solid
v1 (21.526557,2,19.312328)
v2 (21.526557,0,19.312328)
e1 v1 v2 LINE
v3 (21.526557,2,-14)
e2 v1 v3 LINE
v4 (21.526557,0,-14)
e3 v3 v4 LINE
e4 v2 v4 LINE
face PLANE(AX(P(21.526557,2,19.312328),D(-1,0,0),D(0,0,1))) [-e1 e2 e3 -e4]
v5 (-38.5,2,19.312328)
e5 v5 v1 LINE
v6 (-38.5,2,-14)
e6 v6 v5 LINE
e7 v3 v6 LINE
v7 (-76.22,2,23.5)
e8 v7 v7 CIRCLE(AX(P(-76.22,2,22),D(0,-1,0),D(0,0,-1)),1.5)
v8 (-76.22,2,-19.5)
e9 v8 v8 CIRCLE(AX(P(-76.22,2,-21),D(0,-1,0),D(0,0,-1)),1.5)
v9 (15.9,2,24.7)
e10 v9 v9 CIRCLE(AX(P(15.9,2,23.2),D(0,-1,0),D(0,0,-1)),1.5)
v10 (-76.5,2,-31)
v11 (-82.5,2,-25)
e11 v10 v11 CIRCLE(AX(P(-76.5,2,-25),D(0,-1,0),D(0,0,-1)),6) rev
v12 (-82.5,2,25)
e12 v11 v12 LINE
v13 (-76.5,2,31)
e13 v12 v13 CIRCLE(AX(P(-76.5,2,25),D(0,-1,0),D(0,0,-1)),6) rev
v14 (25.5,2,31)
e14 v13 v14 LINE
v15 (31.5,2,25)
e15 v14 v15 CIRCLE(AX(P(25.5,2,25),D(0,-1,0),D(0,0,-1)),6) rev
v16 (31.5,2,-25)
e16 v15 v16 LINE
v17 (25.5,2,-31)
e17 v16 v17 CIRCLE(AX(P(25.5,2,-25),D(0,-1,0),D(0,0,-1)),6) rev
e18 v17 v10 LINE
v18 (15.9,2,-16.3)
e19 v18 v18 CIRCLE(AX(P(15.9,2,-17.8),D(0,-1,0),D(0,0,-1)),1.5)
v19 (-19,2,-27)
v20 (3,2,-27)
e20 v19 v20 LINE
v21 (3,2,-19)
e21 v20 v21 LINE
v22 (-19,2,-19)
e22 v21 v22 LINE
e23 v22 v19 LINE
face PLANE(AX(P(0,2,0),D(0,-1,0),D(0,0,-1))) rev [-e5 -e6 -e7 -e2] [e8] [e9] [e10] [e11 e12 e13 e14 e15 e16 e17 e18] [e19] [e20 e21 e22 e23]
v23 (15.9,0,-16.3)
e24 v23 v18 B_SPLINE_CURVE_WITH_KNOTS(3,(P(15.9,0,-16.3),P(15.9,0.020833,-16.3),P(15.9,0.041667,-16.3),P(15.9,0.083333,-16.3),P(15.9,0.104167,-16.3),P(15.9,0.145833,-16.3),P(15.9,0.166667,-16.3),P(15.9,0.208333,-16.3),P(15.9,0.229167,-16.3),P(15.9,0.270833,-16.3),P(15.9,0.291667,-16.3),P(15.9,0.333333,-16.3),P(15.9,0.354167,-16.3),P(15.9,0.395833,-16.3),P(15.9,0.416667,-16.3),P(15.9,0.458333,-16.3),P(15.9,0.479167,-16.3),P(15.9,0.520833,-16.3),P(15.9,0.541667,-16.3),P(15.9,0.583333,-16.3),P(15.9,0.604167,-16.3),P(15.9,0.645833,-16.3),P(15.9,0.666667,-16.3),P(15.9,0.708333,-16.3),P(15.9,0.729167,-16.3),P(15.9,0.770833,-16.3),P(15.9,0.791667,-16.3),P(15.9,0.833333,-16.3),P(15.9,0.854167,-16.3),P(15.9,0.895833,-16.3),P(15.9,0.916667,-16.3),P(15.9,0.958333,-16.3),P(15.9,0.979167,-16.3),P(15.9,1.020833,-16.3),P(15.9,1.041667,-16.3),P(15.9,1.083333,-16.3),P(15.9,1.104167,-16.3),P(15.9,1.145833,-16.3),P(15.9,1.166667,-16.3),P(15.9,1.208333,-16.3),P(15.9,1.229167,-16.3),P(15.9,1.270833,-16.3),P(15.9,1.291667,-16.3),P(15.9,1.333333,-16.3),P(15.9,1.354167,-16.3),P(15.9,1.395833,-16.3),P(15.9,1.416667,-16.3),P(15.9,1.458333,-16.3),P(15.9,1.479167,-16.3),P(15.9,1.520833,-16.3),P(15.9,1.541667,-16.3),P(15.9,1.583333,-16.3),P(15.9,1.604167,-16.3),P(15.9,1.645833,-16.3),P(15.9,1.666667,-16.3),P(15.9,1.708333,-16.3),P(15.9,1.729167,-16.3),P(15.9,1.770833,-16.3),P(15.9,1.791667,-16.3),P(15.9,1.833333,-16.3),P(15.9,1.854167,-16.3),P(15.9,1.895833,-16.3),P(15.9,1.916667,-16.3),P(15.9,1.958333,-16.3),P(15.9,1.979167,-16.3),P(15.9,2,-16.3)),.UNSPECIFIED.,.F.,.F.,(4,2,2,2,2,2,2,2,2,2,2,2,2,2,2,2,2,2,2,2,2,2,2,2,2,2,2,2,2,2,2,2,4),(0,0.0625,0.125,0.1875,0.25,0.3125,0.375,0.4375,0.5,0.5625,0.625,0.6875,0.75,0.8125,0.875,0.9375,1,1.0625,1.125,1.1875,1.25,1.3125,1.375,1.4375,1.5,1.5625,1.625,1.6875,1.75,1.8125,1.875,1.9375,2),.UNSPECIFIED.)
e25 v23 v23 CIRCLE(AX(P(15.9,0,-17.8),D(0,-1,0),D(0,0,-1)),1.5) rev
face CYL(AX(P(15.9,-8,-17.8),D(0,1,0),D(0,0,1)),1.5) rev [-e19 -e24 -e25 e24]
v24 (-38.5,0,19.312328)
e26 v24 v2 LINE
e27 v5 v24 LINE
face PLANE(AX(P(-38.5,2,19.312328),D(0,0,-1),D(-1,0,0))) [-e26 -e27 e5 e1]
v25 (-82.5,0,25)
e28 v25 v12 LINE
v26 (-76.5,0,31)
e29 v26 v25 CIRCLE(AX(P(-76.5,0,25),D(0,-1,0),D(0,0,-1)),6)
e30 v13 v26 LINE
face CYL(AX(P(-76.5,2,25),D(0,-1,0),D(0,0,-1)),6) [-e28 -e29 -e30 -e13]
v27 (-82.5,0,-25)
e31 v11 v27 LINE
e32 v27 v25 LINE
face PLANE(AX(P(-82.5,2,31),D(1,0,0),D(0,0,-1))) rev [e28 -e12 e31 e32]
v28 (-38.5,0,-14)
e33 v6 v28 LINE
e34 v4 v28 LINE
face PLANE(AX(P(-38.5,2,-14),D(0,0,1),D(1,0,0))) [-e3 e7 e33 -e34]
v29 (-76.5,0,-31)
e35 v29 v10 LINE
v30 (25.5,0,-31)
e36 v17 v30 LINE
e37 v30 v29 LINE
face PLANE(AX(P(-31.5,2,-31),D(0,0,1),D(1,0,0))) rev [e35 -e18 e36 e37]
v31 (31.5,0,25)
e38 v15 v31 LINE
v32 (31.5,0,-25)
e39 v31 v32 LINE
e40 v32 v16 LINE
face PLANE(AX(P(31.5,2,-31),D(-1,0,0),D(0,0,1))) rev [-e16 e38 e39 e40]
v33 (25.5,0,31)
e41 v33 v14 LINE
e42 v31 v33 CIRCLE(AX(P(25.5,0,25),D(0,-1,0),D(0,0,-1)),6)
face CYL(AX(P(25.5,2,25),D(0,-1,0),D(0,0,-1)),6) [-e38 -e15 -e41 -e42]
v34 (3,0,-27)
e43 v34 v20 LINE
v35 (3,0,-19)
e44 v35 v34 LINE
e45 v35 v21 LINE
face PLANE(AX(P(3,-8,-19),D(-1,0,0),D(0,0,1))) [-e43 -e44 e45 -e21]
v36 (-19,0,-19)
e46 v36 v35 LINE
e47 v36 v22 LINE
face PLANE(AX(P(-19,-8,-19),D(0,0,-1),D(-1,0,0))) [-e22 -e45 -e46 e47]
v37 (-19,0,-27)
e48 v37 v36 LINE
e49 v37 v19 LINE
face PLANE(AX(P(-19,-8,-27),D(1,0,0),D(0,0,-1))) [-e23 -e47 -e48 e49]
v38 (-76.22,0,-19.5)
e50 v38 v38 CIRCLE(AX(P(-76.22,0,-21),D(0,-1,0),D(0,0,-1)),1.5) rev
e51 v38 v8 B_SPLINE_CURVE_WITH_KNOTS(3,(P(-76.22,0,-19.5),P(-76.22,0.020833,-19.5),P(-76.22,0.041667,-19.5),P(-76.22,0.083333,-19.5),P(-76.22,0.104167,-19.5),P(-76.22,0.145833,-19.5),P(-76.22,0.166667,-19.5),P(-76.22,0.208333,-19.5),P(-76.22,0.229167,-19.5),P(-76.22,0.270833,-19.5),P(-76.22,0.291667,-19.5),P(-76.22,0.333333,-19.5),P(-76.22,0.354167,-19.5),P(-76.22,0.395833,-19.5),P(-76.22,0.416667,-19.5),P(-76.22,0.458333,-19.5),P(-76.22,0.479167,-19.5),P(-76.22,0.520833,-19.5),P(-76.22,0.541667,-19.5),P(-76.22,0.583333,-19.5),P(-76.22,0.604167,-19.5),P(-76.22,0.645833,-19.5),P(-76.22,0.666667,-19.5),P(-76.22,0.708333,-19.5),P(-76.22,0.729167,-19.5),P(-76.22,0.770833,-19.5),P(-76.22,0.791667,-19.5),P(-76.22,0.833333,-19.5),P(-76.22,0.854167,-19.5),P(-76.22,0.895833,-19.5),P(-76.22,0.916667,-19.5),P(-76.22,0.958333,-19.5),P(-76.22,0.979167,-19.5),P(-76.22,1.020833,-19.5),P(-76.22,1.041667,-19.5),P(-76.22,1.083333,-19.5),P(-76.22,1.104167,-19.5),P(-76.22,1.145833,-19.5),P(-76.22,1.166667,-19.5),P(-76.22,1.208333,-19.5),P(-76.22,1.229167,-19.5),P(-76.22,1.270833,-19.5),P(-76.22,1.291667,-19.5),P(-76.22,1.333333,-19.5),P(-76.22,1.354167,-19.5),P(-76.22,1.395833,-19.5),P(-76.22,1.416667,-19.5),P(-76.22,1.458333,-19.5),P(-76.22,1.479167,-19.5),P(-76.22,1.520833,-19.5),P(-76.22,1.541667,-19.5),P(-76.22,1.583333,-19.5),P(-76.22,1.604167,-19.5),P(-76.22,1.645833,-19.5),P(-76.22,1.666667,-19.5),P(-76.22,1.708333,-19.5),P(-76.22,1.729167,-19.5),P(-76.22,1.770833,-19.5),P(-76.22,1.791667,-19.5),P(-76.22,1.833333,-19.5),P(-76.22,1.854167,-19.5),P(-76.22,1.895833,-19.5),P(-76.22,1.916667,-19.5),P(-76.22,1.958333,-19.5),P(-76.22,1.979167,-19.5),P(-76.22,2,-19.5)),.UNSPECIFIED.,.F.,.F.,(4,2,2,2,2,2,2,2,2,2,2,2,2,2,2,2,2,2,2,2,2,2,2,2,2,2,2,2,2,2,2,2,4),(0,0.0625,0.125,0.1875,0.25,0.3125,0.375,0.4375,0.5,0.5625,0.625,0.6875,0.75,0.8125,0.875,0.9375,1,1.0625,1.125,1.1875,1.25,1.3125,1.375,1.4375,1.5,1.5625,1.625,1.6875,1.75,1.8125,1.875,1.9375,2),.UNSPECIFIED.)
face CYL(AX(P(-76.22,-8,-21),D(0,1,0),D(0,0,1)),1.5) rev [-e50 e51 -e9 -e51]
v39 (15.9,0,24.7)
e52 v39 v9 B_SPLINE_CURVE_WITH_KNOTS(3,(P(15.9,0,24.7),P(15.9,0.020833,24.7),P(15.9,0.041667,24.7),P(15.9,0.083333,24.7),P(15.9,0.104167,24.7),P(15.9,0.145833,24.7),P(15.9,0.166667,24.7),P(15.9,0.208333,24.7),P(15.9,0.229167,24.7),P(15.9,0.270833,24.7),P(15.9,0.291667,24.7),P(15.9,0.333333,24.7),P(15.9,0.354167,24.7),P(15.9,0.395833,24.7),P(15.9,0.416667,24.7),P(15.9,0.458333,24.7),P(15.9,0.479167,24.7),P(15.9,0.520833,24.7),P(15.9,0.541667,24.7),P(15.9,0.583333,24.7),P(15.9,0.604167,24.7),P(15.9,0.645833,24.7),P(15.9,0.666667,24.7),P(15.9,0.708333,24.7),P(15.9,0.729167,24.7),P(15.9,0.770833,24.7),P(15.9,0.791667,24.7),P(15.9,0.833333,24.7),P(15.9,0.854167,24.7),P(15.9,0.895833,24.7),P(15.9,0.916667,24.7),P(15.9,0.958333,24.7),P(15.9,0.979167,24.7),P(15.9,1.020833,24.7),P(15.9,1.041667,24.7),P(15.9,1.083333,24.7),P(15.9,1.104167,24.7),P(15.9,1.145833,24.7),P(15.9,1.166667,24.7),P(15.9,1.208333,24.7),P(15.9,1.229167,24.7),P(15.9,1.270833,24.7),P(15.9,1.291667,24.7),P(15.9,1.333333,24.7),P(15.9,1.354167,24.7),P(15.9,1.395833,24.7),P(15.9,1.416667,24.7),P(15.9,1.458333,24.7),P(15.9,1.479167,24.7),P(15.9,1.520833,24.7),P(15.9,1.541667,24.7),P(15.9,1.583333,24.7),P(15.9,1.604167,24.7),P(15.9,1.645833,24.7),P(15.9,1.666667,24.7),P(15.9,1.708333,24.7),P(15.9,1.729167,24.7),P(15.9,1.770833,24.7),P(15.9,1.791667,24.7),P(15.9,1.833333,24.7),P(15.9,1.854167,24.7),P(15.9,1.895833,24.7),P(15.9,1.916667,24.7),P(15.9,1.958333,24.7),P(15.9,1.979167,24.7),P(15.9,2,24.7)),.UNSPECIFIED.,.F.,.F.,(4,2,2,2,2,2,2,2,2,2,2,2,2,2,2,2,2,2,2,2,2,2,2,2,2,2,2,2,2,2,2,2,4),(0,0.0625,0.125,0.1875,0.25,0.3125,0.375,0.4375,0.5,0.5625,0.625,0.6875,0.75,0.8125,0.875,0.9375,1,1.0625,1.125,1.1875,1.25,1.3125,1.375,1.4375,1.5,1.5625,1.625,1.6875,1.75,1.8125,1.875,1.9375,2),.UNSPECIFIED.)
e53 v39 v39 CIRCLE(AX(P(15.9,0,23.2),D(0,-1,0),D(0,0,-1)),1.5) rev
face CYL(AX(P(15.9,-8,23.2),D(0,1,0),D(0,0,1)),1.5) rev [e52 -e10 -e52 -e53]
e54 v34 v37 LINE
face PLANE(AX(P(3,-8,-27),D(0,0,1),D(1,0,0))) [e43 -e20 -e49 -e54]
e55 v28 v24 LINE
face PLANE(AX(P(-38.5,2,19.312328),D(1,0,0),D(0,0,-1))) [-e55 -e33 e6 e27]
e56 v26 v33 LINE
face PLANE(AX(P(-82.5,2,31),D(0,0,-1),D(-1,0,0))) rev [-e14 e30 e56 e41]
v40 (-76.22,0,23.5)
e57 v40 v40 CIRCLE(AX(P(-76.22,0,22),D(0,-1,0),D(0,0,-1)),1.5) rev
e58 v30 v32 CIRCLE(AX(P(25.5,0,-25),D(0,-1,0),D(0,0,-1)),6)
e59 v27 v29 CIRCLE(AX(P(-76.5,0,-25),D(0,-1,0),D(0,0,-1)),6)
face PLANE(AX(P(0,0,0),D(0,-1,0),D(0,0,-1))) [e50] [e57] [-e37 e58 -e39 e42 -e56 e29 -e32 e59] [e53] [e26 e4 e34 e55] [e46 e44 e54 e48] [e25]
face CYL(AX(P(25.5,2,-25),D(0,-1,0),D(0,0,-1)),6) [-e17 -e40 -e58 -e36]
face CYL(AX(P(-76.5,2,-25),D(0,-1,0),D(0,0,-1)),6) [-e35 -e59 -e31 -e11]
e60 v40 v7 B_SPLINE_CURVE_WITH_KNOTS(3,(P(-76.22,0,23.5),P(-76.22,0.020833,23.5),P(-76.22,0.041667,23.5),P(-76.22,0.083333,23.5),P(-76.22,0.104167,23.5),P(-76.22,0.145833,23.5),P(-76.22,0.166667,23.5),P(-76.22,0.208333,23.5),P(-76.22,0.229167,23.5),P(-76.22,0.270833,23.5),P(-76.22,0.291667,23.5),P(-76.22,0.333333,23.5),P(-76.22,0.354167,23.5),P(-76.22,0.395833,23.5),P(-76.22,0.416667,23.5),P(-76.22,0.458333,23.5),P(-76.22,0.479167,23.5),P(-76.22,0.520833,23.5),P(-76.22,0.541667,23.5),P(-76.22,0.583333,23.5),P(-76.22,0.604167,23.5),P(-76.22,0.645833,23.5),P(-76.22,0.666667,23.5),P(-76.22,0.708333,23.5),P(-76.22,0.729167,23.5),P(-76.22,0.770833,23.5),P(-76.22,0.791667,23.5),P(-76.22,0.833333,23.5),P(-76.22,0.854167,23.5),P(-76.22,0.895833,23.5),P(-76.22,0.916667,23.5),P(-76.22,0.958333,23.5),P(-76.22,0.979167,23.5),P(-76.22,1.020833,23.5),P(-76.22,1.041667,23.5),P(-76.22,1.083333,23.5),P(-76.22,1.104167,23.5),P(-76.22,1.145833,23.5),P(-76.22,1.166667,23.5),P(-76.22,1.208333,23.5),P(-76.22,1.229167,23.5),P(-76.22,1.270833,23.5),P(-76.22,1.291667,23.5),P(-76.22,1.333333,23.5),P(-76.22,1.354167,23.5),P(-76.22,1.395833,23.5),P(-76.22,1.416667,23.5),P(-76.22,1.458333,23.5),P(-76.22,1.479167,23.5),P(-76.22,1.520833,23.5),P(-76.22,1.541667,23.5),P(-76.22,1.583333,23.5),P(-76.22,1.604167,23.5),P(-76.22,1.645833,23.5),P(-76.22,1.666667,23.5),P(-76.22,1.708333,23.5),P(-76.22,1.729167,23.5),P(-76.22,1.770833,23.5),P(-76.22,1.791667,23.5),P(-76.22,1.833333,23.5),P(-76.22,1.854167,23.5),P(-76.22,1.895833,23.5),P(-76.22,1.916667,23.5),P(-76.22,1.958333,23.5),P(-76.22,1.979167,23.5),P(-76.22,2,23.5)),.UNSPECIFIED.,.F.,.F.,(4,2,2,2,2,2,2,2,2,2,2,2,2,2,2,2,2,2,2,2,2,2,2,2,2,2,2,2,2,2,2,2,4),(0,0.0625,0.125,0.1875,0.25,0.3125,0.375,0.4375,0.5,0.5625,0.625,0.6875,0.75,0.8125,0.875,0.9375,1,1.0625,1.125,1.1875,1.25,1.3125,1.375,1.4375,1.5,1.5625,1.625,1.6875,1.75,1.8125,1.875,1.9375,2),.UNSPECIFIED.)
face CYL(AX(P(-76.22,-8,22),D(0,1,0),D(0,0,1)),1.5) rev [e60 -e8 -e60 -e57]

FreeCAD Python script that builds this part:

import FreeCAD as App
import Part
import Sketcher

V = App.Vector
Q = App.Units.Quantity


def edges_at(feature, points):
    """Names of the edges that pass closest to the given points."""
    edges = feature.Shape.Edges
    near = lambda p: min(range(len(edges)), key=lambda i: edges[i].distToShape(Part.Vertex(*p))[0])
    return sorted({f"Edge{near(p) + 1}" for p in points})

doc = App.newDocument("Part")
body = doc.addObject("PartDesign::Body", "Body")

# Sketch on XZ plane
sketch1 = body.newObject("Sketcher::SketchObject", "Sketch")
sketch1.AttachmentSupport = (doc.getObject("XZ_Plane"), [""])
sketch1.MapMode = "FlatFace"
sketch1.addGeometry([
    Part.LineSegment(V(-82.5, -31, 0), V(-82.5, 31, 0)),  # 0
    Part.LineSegment(V(-82.5, 31, 0), V(31.5, 31, 0)),  # 1
    Part.LineSegment(V(31.5, 31, 0), V(31.5, -31, 0)),  # 2
    Part.LineSegment(V(31.5, -31, 0), V(-82.5, -31, 0)),  # 3
    Part.LineSegment(V(-38.5, 19.312328, 0), V(-38.5, -14, 0)),  # 4
    Part.LineSegment(V(-38.5, -14, 0), V(21.526557, -14, 0)),  # 5
    Part.LineSegment(V(21.526557, -14, 0), V(21.526557, 19.312328, 0)),  # 6
    Part.LineSegment(V(21.526557, 19.312328, 0), V(-38.5, 19.312328, 0)),  # 7
], False)
sketch1.addConstraint([
    Sketcher.Constraint("Coincident", 0, 2, 1, 1),
    Sketcher.Constraint("Coincident", 1, 2, 2, 1),
    Sketcher.Constraint("Coincident", 2, 2, 3, 1),
    Sketcher.Constraint("Coincident", 3, 2, 0, 1),
    Sketcher.Constraint("Coincident", 4, 2, 5, 1),
    Sketcher.Constraint("Coincident", 5, 2, 6, 1),
    Sketcher.Constraint("Coincident", 6, 2, 7, 1),
    Sketcher.Constraint("Coincident", 7, 2, 4, 1),
    Sketcher.Constraint("Vertical", 0),
    Sketcher.Constraint("Horizontal", 1),
    Sketcher.Constraint("Vertical", 2),
    Sketcher.Constraint("Horizontal", 3),
    Sketcher.Constraint("Vertical", 4),
    Sketcher.Constraint("Horizontal", 5),
    Sketcher.Constraint("Vertical", 6),
    Sketcher.Constraint("Horizontal", 7),
    Sketcher.Constraint("DistanceX", 1, 1, 1, 2, Q("114 mm")),
    Sketcher.Constraint("DistanceY", 0, 1, 0, 2, Q("62 mm")),
    Sketcher.Constraint("DistanceY", -1, 1, 0, 2, Q("31 mm")),
    Sketcher.Constraint("DistanceY", 4, 2, -1, 1, Q("14 mm")),
    Sketcher.Constraint("DistanceX", 3, 2, 4, 2, Q("44 mm")),
    Sketcher.Constraint("DistanceX", 0, 2, -1, 1, Q("82.5 mm")),
    Sketcher.Constraint("DistanceX", 5, 1, 5, 2, Q("60.026557 mm")),
    Sketcher.Constraint("DistanceY", 4, 2, 4, 1, Q("33.312328 mm")),
])
pad1 = body.newObject("PartDesign::Pad", "Pad")
pad1.Profile = sketch1
pad1.Length = 2
pad1.Reversed = True

# Sketch on XZ plane
sketch2 = body.newObject("Sketcher::SketchObject", "Sketch001")
sketch2.AttachmentSupport = (doc.getObject("XZ_Plane"), [""])
sketch2.MapMode = "FlatFace"
sketch2.AttachmentOffset = App.Placement(V(0, 0, -2), App.Rotation())
sketch2.addGeometry([
    Part.Circle(V(15.9, 23.2, 0), V(0, 0, 1), 1.5),  # 0
    Part.Circle(V(15.9, -17.8, 0), V(0, 0, 1), 1.5),  # 1
    Part.Circle(V(-76.22, 22, 0), V(0, 0, 1), 1.5),  # 2
    Part.Circle(V(-76.22, -21, 0), V(0, 0, 1), 1.5),  # 3
    Part.LineSegment(V(-19, -19, 0), V(-19, -27, 0)),  # 4
    Part.LineSegment(V(-19, -27, 0), V(3, -27, 0)),  # 5
    Part.LineSegment(V(3, -27, 0), V(3, -19, 0)),  # 6
    Part.LineSegment(V(3, -19, 0), V(-19, -19, 0)),  # 7
], False)
sketch2.addConstraint([
    Sketcher.Constraint("Coincident", 4, 2, 5, 1),
    Sketcher.Constraint("Coincident", 5, 2, 6, 1),
    Sketcher.Constraint("Coincident", 6, 2, 7, 1),
    Sketcher.Constraint("Coincident", 7, 2, 4, 1),
    Sketcher.Constraint("Vertical", 4),
    Sketcher.Constraint("Horizontal", 5),
    Sketcher.Constraint("Vertical", 6),
    Sketcher.Constraint("Horizontal", 7),
    Sketcher.Constraint("Equal", 0, 1),
    Sketcher.Constraint("Equal", 1, 2),
    Sketcher.Constraint("Equal", 2, 3),
    Sketcher.Constraint("Vertical", 0, 3, 1, 3),
    Sketcher.Constraint("Vertical", 2, 3, 3, 3),
    Sketcher.Constraint("Diameter", 0, Q("3 mm")),
    Sketcher.Constraint("DistanceX", 5, 1, 5, 2, Q("22 mm")),
    Sketcher.Constraint("DistanceY", 4, 2, 4, 1, Q("8 mm")),
    Sketcher.Constraint("DistanceY", -1, 1, 2, 3, Q("22 mm")),
    Sketcher.Constraint("DistanceY", 3, 3, -1, 1, Q("21 mm")),
    Sketcher.Constraint("DistanceX", 4, 2, -1, 1, Q("19 mm")),
    Sketcher.Constraint("DistanceY", 4, 2, -1, 1, Q("27 mm")),
    Sketcher.Constraint("DistanceY", 1, 3, 0, 3, Q("41 mm")),
    Sketcher.Constraint("DistanceX", -1, 1, 0, 3, Q("15.9 mm")),
    Sketcher.Constraint("DistanceY", -1, 1, 0, 3, Q("23.2 mm")),
    Sketcher.Constraint("DistanceX", 2, 3, -1, 1, Q("76.22 mm")),
])
pocket1 = body.newObject("PartDesign::Pocket", "Pocket")
pocket1.Profile = sketch2
pocket1.Length = 10
pocket1.Reversed = True
doc.recompute()

fillet = body.newObject("PartDesign::Fillet", "Fillet")
fillet.Base = (pocket1, edges_at(pocket1, [
    (-82.5, 1, 31),
    (-82.5, 1, -31),
    (31.5, 1, -31),
    (31.5, 1, 31),
]))
fillet.Radius = 6

doc.recompute()
